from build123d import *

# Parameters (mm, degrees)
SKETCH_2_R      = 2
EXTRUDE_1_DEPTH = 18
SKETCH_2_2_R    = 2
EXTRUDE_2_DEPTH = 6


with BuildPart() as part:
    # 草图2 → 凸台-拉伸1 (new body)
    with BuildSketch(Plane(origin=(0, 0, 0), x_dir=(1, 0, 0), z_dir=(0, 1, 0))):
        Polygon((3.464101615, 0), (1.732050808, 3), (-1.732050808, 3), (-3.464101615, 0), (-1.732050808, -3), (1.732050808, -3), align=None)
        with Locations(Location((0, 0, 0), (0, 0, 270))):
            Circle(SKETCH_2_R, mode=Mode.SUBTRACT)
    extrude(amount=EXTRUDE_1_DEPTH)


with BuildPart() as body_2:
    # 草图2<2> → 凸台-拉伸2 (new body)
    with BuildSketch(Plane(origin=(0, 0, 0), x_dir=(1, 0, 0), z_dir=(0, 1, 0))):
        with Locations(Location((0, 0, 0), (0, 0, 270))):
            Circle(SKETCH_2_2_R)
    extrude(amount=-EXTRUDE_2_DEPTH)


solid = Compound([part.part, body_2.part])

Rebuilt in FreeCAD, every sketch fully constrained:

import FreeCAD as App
import Part
import Sketcher

V = App.Vector
Q = App.Units.Quantity

doc = App.newDocument("Part")
params = doc.addObject("Spreadsheet::Sheet", "Params")
for row, (alias, value) in enumerate([
    ("sketch1_diameter", "4 mm"),
    ("pad1_length", "18 mm"),
    ("sketch2_diameter", "4 mm"),
    ("pad2_length", "6 mm"),
], start=1):
    params.set(f"A{row}", alias)
    params.set(f"B{row}", "=" + value)
    params.setAlias(f"B{row}", alias)

body = doc.addObject("PartDesign::Body", "Body")

# Sketch on XZ plane
sketch1 = body.newObject("Sketcher::SketchObject", "Sketch")
sketch1.AttachmentSupport = (doc.getObject("XZ_Plane"), [""])
sketch1.MapMode = "FlatFace"
sketch1.addGeometry([
    Part.LineSegment(V(3.5, 0, 0), V(1.7, -3, 0)),  # 0
    Part.LineSegment(V(1.7, -3, 0), V(-1.7, -3, 0)),  # 1
    Part.LineSegment(V(-1.7, -3, 0), V(-3.5, 0, 0)),  # 2
    Part.LineSegment(V(-3.5, 0, 0), V(-1.7, 3, 0)),  # 3
    Part.LineSegment(V(-1.7, 3, 0), V(1.7, 3, 0)),  # 4
    Part.LineSegment(V(1.7, 3, 0), V(3.5, 0, 0)),  # 5
    Part.Circle(V(0, 0, 0), V(0, 0, 1), 2),  # 6
], False)
sketch1.addConstraint([
    Sketcher.Constraint("Coincident", 0, 2, 1, 1),
    Sketcher.Constraint("Coincident", 1, 2, 2, 1),
    Sketcher.Constraint("Coincident", 2, 2, 3, 1),
    Sketcher.Constraint("Coincident", 3, 2, 4, 1),
    Sketcher.Constraint("Coincident", 4, 2, 5, 1),
    Sketcher.Constraint("Coincident", 5, 2, 0, 1),
    Sketcher.Constraint("Horizontal", 1),
    Sketcher.Constraint("Horizontal", 4),
    Sketcher.Constraint("Coincident", 6, 3, -1, 1),
    Sketcher.Constraint("Symmetric", 0, 2, 3, 2, -1, 1),
    Sketcher.Constraint("Symmetric", 2, 2, 5, 2, -1, 1),
    Sketcher.Constraint("PointOnObject", 2, 2, -1),
    Sketcher.Constraint("Parallel", 2, 5),
    Sketcher.Constraint("Vertical", 1, 2, 3, 2),
    Sketcher.Constraint("Diameter", 6, 4.0),
    Sketcher.Constraint("Angle", 0, Q("-120 deg")),
    Sketcher.Constraint("DistanceY", 0, 2, -1, 1, 3.0),
    Sketcher.Constraint("DistanceX", 1, 2, 1, 1, 3.464102),
])
sketch1.setExpression("Constraints[14]", "Params.sketch1_diameter")
pad1 = body.newObject("PartDesign::Pad", "Pad")
pad1.Profile = sketch1
pad1.setExpression("Length", "Params.pad1_length")
pad1.Reversed = True
body2 = doc.addObject("PartDesign::Body", "Body001")

# Sketch on XZ plane
sketch2 = body2.newObject("Sketcher::SketchObject", "Sketch001")
sketch2.AttachmentSupport = (doc.getObject("XZ_Plane001"), [""])
sketch2.MapMode = "FlatFace"
sketch2.addGeometry(Part.Circle(V(0, 0, 0), V(0, 0, 1), 2), False)
sketch2.addConstraint([
    Sketcher.Constraint("Coincident", 0, 3, -1, 1),
    Sketcher.Constraint("Diameter", 0, 4.0),
])
sketch2.setExpression("Constraints[1]", "Params.sketch2_diameter")
pad2 = body2.newObject("PartDesign::Pad", "Pad001")
pad2.Profile = sketch2
pad2.setExpression("Length", "Params.pad2_length")

doc.recompute()
